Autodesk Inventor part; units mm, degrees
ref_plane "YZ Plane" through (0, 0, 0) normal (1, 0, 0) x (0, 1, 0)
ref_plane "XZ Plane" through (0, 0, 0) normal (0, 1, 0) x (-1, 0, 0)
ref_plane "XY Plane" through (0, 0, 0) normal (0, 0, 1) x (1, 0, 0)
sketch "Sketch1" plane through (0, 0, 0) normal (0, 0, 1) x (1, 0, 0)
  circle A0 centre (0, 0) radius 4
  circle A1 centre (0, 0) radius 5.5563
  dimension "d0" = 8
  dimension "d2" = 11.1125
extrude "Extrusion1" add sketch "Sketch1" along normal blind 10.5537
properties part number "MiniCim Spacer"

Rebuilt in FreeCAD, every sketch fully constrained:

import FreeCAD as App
import Part
import Sketcher
Q = App.Units.Quantity

doc = App.newDocument("Part")
body = doc.addObject("PartDesign::Body", "Body")

# Sketch on XY plane
sketch1 = body.newObject("Sketcher::SketchObject", "Sketch")
sketch1.AttachmentSupport = (doc.getObject("XY_Plane"), [""])
sketch1.MapMode = "FlatFace"
sketch1.addGeometry([
    Part.Circle(App.Vector(0, 0, 0), App.Vector(0, 0, 1), 5.6),
    Part.Circle(App.Vector(0, 0, 0), App.Vector(0, 0, 1), 4),
], False)
sketch1.addConstraint([
    Sketcher.Constraint("Coincident", 0, 3, -1, 1),
    Sketcher.Constraint("Coincident", 1, 3, -1, 1),
    Sketcher.Constraint("Diameter", 1, Q("8 mm")),
    Sketcher.Constraint("Diameter", 0, Q("11.1126 mm")),
])
pad1 = body.newObject("PartDesign::Pad", "Pad")
pad1.Profile = sketch1
pad1.Length = 10.5537

doc.recompute()
